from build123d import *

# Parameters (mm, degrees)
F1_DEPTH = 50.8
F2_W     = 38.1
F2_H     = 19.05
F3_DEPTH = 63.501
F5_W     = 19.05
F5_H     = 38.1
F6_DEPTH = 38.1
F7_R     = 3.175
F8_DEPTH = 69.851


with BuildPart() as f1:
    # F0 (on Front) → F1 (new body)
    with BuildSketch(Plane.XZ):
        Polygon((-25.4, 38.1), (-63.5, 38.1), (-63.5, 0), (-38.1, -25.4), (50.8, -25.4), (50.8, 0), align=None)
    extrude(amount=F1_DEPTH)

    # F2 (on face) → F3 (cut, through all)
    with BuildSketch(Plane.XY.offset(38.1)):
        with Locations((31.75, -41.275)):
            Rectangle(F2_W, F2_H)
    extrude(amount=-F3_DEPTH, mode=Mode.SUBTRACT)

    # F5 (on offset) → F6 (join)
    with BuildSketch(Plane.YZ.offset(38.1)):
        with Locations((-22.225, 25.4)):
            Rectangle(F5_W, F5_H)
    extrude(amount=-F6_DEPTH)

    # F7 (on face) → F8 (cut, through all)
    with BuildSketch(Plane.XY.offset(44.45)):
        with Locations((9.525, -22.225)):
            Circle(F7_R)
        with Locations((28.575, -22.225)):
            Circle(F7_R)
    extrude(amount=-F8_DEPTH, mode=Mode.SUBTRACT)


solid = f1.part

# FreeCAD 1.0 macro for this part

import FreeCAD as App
import Part
import Sketcher
Q = App.Units.Quantity


def add_polygon(sketch, points):
    """Adds a closed chain of lines whose ends are joined by coincident constraints."""
    first, n = sketch.GeometryCount, len(points)
    for a, b in zip(points, points[1:] + points[:1]):
        sketch.addGeometry(Part.LineSegment(App.Vector(*a, 0), App.Vector(*b, 0)), False)
    for i in range(n):
        sketch.addConstraint(Sketcher.Constraint("Coincident", first + i, 2, first + (i + 1) % n, 1))

doc = App.newDocument("Part")
body = doc.addObject("PartDesign::Body", "Body")

# Sketch on XZ plane
sketch1 = body.newObject("Sketcher::SketchObject", "Sketch")
sketch1.AttachmentSupport = (doc.getObject("XZ_Plane"), [""])
sketch1.MapMode = "FlatFace"
add_polygon(sketch1, [(-25.4, 38.1), (-63.5, 38.1), (-63.5, 0), (-38.1, -25.4), (50.8, -25.4), (50.8, 0)])  # lines 0-5
sketch1.addConstraint(Sketcher.Constraint("Horizontal", 0))
sketch1.addConstraint(Sketcher.Constraint("Vertical", 1))
sketch1.addConstraint(Sketcher.Constraint("Horizontal", 3))
sketch1.addConstraint(Sketcher.Constraint("Vertical", 4))
sketch1.addConstraint(Sketcher.Constraint("PointOnObject", 1, 2, -1))
sketch1.addConstraint(Sketcher.Constraint("PointOnObject", 4, 2, -1))
sketch1.addConstraint(Sketcher.Constraint("Equal", 0, 1))
sketch1.addConstraint(Sketcher.Constraint("DistanceY", 4, 1, 4, 2, Q("1 in")))
sketch1.addConstraint(Sketcher.Constraint("DistanceX", 0, 2, 0, 1, Q("1.5 in")))
sketch1.addConstraint(Sketcher.Constraint("DistanceX", 3, 1, 3, 2, Q("3.5 in")))
sketch1.addConstraint(Sketcher.Constraint("DistanceX", -1, 1, 3, 2, Q("2 in")))
sketch1.addConstraint(Sketcher.Constraint("DistanceX", 5, 2, -1, 1, Q("1 in")))
pad1 = body.newObject("PartDesign::Pad", "Pad")
pad1.Profile = sketch1
pad1.Length = Q("2 in")

# Sketch on XY plane
sketch2 = body.newObject("Sketcher::SketchObject", "Sketch001")
sketch2.AttachmentSupport = (doc.getObject("XY_Plane"), [""])
sketch2.MapMode = "FlatFace"
sketch2.AttachmentOffset = App.Placement(App.Vector(0, 0, 1.5 * 25.4), App.Rotation())
add_polygon(sketch2, [(12.7, -31.75), (12.7, -50.8), (50.8, -50.8), (50.8, -31.75)])  # lines 0-3
sketch2.addConstraint(Sketcher.Constraint("Vertical", 0))
sketch2.addConstraint(Sketcher.Constraint("Horizontal", 1))
sketch2.addConstraint(Sketcher.Constraint("Vertical", 2))
sketch2.addConstraint(Sketcher.Constraint("Horizontal", 3))
sketch2.addConstraint(Sketcher.Constraint("DistanceX", 1, 1, 1, 2, Q("1.5 in")))
sketch2.addConstraint(Sketcher.Constraint("DistanceY", 0, 2, -1, 1, Q("2 in")))
sketch2.addConstraint(Sketcher.Constraint("DistanceX", -1, 1, 1, 2, Q("2 in")))
sketch2.addConstraint(Sketcher.Constraint("DistanceY", 0, 2, 0, 1, Q("0.75 in")))
pocket1 = body.newObject("PartDesign::Pocket", "Pocket")
pocket1.Profile = sketch2
pocket1.Type = "ThroughAll"

# Sketch on YZ plane
sketch3 = body.newObject("Sketcher::SketchObject", "Sketch002")
sketch3.AttachmentSupport = (doc.getObject("YZ_Plane"), [""])
sketch3.MapMode = "FlatFace"
sketch3.AttachmentOffset = App.Placement(App.Vector(0, 0, 1.5 * 25.4), App.Rotation())
add_polygon(sketch3, [(-31.75, 44.45), (-31.75, 6.35), (-12.7, 6.35), (-12.7, 44.45)])  # lines 0-3
sketch3.addConstraint(Sketcher.Constraint("Vertical", 0))
sketch3.addConstraint(Sketcher.Constraint("Horizontal", 1))
sketch3.addConstraint(Sketcher.Constraint("Vertical", 2))
sketch3.addConstraint(Sketcher.Constraint("Horizontal", 3))
sketch3.addConstraint(Sketcher.Constraint("DistanceY", 0, 2, 0, 1, Q("1.5 in")))
sketch3.addConstraint(Sketcher.Constraint("DistanceX", 1, 1, 1, 2, Q("0.75 in")))
sketch3.addConstraint(Sketcher.Constraint("DistanceX", 1, 2, -1, 1, Q("0.5 in")))
sketch3.addConstraint(Sketcher.Constraint("DistanceY", -1, 1, 0, 2, Q("0.25 in")))
pad2 = body.newObject("PartDesign::Pad", "Pad001")
pad2.Profile = sketch3
pad2.Length = Q("1.5 in")
pad2.Reversed = True

# Sketch on XY plane
sketch4 = body.newObject("Sketcher::SketchObject", "Sketch003")
sketch4.AttachmentSupport = (doc.getObject("XY_Plane"), [""])
sketch4.MapMode = "FlatFace"
sketch4.AttachmentOffset = App.Placement(App.Vector(0, 0, 1.75 * 25.4), App.Rotation())
sketch4.addGeometry(Part.Circle(App.Vector(9.525, -22.225, 0), App.Vector(0, 0, 1), 3.175), False)
sketch4.addGeometry(Part.Circle(App.Vector(28.575, -22.225, 0), App.Vector(0, 0, 1), 3.175), False)
sketch4.addConstraint(Sketcher.Constraint("Equal", 0, 1))
sketch4.addConstraint(Sketcher.Constraint("Horizontal", 0, 3, 1, 3))
sketch4.addConstraint(Sketcher.Constraint("Diameter", 0, Q("0.25 in")))
sketch4.addConstraint(Sketcher.Constraint("DistanceX", 0, 3, 1, 3, Q("0.75 in")))
sketch4.addConstraint(Sketcher.Constraint("DistanceX", -1, 1, 0, 3, Q("0.375 in")))
sketch4.addConstraint(Sketcher.Constraint("DistanceY", 0, 3, -1, 1, Q("0.875 in")))
pocket2 = body.newObject("PartDesign::Pocket", "Pocket001")
pocket2.Profile = sketch4
pocket2.Type = "ThroughAll"

doc.recompute()
